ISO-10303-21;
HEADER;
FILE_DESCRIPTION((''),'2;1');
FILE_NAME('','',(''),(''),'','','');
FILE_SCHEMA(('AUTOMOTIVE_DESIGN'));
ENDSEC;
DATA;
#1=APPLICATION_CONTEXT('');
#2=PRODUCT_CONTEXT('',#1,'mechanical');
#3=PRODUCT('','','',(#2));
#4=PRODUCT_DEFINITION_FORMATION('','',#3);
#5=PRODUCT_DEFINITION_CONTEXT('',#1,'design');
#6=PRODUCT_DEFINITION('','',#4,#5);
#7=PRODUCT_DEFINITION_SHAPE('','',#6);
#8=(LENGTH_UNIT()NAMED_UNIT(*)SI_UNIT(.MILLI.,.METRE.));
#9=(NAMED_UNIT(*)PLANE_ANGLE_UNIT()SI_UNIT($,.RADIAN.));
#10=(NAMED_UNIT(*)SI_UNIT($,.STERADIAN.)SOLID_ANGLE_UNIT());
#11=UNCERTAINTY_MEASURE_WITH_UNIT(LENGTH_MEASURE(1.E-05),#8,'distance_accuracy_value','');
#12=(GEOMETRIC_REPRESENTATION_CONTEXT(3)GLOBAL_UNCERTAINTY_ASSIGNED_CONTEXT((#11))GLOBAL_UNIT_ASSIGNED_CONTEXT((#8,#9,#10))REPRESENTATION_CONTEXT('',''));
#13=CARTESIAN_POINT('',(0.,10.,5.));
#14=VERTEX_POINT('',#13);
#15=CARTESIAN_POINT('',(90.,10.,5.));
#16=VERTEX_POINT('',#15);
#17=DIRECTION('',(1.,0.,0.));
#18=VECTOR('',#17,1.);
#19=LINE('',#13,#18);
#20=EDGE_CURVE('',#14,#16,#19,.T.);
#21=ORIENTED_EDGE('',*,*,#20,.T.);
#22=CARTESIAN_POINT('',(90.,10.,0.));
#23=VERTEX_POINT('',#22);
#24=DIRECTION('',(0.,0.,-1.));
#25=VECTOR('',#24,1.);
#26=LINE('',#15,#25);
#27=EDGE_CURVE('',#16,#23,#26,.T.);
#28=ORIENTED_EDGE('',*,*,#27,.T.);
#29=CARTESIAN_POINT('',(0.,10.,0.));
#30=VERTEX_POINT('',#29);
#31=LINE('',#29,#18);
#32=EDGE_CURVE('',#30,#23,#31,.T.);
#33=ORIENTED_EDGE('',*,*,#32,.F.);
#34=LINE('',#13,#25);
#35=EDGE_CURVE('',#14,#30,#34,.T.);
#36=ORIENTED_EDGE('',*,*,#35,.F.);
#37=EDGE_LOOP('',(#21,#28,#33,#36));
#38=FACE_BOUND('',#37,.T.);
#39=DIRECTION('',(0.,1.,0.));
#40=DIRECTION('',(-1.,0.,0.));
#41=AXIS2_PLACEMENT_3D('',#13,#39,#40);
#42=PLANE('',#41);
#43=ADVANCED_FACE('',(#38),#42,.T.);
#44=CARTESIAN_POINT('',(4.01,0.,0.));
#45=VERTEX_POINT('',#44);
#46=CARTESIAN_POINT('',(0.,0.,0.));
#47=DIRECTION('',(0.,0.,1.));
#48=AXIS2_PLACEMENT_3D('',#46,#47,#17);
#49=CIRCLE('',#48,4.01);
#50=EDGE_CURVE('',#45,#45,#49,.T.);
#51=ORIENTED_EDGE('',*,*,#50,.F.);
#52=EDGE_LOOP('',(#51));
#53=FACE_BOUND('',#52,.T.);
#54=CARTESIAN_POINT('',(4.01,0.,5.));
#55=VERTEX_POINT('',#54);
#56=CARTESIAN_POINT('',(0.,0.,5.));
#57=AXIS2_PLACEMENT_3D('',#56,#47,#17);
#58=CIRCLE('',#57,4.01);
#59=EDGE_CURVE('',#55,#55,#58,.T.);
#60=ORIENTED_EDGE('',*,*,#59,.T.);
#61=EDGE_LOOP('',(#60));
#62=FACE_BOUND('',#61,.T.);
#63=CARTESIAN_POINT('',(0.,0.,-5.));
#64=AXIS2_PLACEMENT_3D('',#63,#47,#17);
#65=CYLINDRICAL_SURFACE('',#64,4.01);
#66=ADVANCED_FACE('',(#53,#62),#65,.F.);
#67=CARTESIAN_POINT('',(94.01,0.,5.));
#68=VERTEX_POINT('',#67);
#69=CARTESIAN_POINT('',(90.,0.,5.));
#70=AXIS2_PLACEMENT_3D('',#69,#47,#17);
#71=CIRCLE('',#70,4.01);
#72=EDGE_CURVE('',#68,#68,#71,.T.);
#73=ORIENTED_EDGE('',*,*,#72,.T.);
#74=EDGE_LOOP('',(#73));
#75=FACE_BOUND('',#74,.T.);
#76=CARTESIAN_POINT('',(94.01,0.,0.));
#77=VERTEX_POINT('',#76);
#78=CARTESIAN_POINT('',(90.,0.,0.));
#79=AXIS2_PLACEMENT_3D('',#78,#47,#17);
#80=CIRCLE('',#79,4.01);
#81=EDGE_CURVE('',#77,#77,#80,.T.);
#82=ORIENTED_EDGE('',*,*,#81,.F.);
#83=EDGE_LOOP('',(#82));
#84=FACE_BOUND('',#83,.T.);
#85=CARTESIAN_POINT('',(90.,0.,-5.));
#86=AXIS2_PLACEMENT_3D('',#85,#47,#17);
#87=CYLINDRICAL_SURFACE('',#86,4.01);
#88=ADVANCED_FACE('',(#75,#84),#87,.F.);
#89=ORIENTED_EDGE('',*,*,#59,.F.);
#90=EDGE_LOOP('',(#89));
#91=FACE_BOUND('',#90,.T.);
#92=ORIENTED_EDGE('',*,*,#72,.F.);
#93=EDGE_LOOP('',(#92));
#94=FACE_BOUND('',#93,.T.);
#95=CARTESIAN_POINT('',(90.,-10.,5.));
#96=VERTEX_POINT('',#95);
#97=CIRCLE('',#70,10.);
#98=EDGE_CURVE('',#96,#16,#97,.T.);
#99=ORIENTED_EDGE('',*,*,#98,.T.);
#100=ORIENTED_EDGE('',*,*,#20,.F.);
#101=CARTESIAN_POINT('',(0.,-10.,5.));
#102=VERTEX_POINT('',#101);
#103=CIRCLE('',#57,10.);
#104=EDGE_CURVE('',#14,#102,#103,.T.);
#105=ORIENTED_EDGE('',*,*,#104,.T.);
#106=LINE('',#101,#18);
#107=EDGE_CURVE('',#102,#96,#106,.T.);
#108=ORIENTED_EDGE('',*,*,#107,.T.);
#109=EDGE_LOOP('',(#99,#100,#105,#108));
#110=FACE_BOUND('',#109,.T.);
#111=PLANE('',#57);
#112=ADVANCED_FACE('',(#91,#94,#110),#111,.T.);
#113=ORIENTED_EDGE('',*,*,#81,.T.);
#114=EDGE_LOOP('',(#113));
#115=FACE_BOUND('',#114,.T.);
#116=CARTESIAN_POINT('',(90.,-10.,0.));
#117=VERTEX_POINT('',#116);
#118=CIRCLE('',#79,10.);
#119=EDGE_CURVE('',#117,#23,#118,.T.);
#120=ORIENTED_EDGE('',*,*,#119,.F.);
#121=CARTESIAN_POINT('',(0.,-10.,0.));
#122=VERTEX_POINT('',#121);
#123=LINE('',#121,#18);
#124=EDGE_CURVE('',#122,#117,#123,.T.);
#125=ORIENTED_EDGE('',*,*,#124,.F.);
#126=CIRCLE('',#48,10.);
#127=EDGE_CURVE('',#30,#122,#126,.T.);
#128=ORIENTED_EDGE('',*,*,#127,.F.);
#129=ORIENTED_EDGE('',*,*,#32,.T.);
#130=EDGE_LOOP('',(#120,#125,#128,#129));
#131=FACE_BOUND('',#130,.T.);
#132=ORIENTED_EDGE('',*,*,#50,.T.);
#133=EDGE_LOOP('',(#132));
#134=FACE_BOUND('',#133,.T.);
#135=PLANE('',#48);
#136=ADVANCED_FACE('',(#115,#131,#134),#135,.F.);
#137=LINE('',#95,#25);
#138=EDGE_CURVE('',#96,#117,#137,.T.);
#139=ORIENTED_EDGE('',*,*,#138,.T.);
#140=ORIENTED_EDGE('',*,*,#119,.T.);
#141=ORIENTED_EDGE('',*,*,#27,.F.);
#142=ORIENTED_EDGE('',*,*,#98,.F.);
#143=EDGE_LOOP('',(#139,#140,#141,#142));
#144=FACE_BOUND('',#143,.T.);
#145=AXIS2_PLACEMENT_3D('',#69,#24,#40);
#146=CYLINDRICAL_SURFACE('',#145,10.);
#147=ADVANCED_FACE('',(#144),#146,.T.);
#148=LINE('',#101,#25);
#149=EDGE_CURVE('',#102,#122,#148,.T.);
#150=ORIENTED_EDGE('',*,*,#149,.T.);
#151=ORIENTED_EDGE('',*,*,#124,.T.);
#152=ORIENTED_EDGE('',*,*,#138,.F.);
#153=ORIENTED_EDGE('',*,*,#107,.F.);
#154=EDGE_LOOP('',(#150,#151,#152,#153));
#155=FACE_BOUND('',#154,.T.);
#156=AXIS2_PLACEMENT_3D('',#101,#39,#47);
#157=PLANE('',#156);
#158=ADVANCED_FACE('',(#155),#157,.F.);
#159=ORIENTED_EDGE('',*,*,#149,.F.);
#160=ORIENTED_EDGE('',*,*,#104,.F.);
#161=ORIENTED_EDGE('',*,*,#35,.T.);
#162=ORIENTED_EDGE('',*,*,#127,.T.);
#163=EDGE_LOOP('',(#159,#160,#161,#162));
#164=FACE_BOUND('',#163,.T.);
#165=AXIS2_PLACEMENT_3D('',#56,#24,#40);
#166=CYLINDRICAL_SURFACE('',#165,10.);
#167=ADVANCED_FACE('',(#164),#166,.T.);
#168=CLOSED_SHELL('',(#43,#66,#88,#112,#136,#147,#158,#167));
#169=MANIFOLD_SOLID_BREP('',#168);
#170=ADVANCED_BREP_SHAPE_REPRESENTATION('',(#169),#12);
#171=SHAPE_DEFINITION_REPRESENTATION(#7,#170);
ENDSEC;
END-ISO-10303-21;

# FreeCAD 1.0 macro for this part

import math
import FreeCAD as App
import Part
import Sketcher
from FreeCAD import Vector

doc = App.newDocument("Part")
body = doc.addObject("PartDesign::Body", "Body")

sketch1 = doc.addObject("Sketcher::SketchObject", "Sketch")
body.addObject(sketch1)
sketch1.AttachmentSupport = (doc.XY_Plane, [""])
sketch1.MapMode = "FlatFace"
sketch1.addGeometry(Part.LineSegment(Vector(90, 10, 0), Vector(0, 10, 0)), False)
sketch1.addGeometry(Part.ArcOfCircle(Part.Circle(Vector(0, 0, 0), Vector(0, 0, 1), 10), math.radians(90), math.radians(270)), False)
sketch1.addGeometry(Part.LineSegment(Vector(0, -10, 0), Vector(90, -10, 0)), False)
sketch1.addGeometry(Part.ArcOfCircle(Part.Circle(Vector(90, 0, 0), Vector(0, 0, 1), 10), math.radians(-90), math.radians(90)), False)
sketch1.addConstraint(Sketcher.Constraint("Tangent", 0, 2, 1, 1))
sketch1.addConstraint(Sketcher.Constraint("Tangent", 1, 2, 2, 1))
sketch1.addConstraint(Sketcher.Constraint("Tangent", 2, 2, 3, 1))
sketch1.addConstraint(Sketcher.Constraint("Tangent", 3, 2, 0, 1))
sketch1.addConstraint(Sketcher.Constraint("Horizontal", 0))
sketch1.addConstraint(Sketcher.Constraint("Horizontal", 2))
sketch1.addConstraint(Sketcher.Constraint("Coincident", 1, 3, -1, 1))
sketch1.addConstraint(Sketcher.Constraint("Radius", 1, 10.0))
sketch1.addConstraint(Sketcher.Constraint("DistanceX", 0, 2, 0, 1, 90.0))
pad1 = doc.addObject("PartDesign::Pad", "Pad")
body.addObject(pad1)
pad1.Profile = sketch1
pad1.Length = 5

sketch2 = doc.addObject("Sketcher::SketchObject", "Sketch001")
body.addObject(sketch2)
sketch2.AttachmentSupport = (doc.XY_Plane, [""])
sketch2.MapMode = "FlatFace"
sketch2.AttachmentOffset = App.Placement(Vector(0, 0, 5), App.Rotation())
sketch2.addGeometry(Part.Circle(Vector(0, 0, 0), Vector(0, 0, 1), 4.01), False)
sketch2.addGeometry(Part.Circle(Vector(90, 0, 0), Vector(0, 0, 1), 4.01), False)
sketch2.addConstraint(Sketcher.Constraint("Coincident", 0, 3, -1, 1))
sketch2.addConstraint(Sketcher.Constraint("Equal", 0, 1))
sketch2.addConstraint(Sketcher.Constraint("PointOnObject", 1, 3, -1))
sketch2.addConstraint(Sketcher.Constraint("Diameter", 0, 8.02))
sketch2.addConstraint(Sketcher.Constraint("DistanceX", -1, 1, 1, 3, 90.0))
pocket1 = doc.addObject("PartDesign::Pocket", "Pocket")
body.addObject(pocket1)
pocket1.Profile = sketch2
pocket1.Length = 10

doc.recompute()
